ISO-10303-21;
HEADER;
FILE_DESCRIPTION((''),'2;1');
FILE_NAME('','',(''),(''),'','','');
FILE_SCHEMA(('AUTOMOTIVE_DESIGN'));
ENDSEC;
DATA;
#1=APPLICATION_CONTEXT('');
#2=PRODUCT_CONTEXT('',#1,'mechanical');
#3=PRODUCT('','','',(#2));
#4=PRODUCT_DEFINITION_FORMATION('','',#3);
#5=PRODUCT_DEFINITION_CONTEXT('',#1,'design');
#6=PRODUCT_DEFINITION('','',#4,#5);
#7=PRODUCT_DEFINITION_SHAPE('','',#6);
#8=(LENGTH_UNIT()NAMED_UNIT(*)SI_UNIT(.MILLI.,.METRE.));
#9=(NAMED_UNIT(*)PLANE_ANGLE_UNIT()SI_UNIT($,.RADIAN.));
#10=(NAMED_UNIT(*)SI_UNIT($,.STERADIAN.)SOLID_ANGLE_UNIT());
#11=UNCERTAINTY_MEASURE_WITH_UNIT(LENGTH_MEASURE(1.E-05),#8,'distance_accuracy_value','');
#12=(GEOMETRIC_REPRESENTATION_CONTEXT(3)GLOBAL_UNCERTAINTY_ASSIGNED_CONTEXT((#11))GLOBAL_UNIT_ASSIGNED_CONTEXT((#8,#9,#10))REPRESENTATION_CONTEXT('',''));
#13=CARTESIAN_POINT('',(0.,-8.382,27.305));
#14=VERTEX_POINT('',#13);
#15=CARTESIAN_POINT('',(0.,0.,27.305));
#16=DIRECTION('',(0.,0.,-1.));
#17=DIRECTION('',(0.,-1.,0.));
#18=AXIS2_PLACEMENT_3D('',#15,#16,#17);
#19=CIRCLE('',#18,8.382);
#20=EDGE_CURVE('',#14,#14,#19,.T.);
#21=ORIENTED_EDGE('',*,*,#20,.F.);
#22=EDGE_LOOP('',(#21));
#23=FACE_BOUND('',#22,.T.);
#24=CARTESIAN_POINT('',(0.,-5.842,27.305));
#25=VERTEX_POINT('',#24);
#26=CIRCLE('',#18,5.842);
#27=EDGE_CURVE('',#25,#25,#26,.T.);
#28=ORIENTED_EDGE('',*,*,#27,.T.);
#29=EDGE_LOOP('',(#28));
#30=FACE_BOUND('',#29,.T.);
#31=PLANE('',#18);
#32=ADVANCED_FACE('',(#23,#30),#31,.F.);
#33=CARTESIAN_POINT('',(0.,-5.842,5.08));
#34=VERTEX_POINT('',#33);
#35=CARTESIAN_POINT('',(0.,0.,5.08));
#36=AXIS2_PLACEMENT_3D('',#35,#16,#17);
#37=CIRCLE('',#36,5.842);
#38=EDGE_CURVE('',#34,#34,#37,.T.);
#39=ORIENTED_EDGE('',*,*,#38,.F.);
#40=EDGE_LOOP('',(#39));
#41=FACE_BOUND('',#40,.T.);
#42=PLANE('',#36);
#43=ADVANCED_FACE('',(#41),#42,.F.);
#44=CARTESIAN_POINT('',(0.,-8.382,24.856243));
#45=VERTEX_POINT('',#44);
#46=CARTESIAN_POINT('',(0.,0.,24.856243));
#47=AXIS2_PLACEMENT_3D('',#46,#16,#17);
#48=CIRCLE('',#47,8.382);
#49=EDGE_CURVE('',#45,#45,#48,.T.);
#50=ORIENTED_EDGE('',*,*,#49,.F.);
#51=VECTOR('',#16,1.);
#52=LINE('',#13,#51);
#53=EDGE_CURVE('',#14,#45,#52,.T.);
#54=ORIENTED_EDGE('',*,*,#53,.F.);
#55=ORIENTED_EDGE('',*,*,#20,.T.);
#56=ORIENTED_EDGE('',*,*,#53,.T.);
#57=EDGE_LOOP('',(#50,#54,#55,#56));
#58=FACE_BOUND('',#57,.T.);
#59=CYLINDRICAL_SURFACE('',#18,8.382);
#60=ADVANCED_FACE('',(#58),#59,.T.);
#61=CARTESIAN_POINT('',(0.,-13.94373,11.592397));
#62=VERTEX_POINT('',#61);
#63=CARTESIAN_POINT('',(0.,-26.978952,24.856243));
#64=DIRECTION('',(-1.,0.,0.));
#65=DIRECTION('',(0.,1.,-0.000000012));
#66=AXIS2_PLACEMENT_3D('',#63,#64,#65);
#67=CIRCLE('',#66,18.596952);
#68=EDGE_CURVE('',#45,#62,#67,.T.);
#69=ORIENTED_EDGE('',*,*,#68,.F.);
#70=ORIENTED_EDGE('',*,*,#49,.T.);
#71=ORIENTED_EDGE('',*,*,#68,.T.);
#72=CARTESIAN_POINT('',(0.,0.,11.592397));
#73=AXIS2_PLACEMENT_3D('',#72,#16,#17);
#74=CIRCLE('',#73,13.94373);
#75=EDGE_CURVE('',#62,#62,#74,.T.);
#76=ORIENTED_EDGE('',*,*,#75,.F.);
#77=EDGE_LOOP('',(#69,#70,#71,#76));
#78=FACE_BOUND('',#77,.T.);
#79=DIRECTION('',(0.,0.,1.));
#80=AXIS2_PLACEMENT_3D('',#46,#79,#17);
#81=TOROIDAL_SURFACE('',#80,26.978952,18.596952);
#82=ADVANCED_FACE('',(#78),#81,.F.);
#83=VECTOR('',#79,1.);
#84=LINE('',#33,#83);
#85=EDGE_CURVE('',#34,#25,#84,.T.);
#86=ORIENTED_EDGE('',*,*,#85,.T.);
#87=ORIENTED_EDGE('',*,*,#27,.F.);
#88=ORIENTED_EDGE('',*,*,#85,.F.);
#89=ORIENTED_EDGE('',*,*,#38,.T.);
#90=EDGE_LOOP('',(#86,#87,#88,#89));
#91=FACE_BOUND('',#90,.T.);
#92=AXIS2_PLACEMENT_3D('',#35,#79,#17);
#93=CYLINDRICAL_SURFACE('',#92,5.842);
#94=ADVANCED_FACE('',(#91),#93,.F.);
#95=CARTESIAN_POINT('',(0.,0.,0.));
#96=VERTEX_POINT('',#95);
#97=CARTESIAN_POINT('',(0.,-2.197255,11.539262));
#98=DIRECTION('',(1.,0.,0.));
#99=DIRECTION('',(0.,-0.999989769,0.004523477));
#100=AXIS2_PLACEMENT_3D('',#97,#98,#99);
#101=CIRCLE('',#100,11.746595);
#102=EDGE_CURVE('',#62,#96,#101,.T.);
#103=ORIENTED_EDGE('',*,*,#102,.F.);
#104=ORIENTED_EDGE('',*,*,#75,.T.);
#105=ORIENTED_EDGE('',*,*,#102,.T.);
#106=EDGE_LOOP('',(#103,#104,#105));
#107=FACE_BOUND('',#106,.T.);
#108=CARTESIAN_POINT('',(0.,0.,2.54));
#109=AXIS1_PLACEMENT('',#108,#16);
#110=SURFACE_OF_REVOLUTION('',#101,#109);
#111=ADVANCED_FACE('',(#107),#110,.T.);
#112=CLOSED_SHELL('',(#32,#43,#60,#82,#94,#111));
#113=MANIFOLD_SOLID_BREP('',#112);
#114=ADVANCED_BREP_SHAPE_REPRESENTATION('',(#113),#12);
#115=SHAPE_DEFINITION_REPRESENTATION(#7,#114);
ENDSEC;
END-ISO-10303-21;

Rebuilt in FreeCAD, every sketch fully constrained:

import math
import FreeCAD as App
import Part
import Sketcher
from FreeCAD import Vector
Q = App.Units.Quantity

doc = App.newDocument("Part")
body = doc.addObject("PartDesign::Body", "Body")

sketch1 = body.newObject("Sketcher::SketchObject", "Sketch")
sketch1.AttachmentSupport = (doc.getObject("YZ_Plane"), [""])
sketch1.MapMode = "FlatFace"
sketch1.addGeometry(Part.LineSegment(Vector(-5.842, 5.08, 0), Vector(-5.842, 27.305, 0)), False)
sketch1.addGeometry(Part.LineSegment(Vector(-5.842, 27.305, 0), Vector(-8.382, 27.305, 0)), False)
sketch1.addGeometry(Part.LineSegment(Vector(-8.382, 27.305, 0), Vector(-8.382, 24.856243, 0)), False)
sketch1.addGeometry(Part.ArcOfCircle(Part.Circle(Vector(-26.978952, 24.856243, 0), Vector(0, 0, 1), 18.596952), math.radians(-45.498073), math.radians(-0.000001)), False)
sketch1.addGeometry(Part.ArcOfCircle(Part.Circle(Vector(-2.197255, 11.539262, 0), Vector(0, 0, 1), 11.746595), math.radians(179.740823), math.radians(280.780948)), False)
sketch1.addGeometry(Part.LineSegment(Vector(0, 0, 0), Vector(0, 5.08, 0)), False)
sketch1.addGeometry(Part.LineSegment(Vector(0, 5.08, 0), Vector(-5.842, 5.08, 0)), False)
sketch1.addConstraint(Sketcher.Constraint("Coincident", 0, 2, 1, 1))
sketch1.addConstraint(Sketcher.Constraint("Coincident", 1, 2, 2, 1))
sketch1.addConstraint(Sketcher.Constraint("Tangent", 2, 2, 3, 2))
sketch1.addConstraint(Sketcher.Constraint("Coincident", 3, 1, 4, 1))
sketch1.addConstraint(Sketcher.Constraint("Coincident", 4, 2, 5, 1))
sketch1.addConstraint(Sketcher.Constraint("Coincident", 5, 2, 6, 1))
sketch1.addConstraint(Sketcher.Constraint("Coincident", 6, 2, 0, 1))
sketch1.addConstraint(Sketcher.Constraint("Vertical", 0))
sketch1.addConstraint(Sketcher.Constraint("Horizontal", 1))
sketch1.addConstraint(Sketcher.Constraint("Vertical", 2))
sketch1.addConstraint(Sketcher.Constraint("Vertical", 5))
sketch1.addConstraint(Sketcher.Constraint("Horizontal", 6))
sketch1.addConstraint(Sketcher.Constraint("Coincident", 4, 2, -1, 1))
sketch1.addConstraint(Sketcher.Constraint("DistanceX", 1, 2, 1, 1, Q("0.1 in")))
sketch1.addConstraint(Sketcher.Constraint("DistanceY", 5, 1, 5, 2, Q("0.2 in")))
sketch1.addConstraint(Sketcher.Constraint("DistanceX", 6, 2, 6, 1, Q("0.23 in")))
sketch1.addConstraint(Sketcher.Constraint("DistanceY", 0, 1, 0, 2, Q("0.875 in")))
sketch1.addConstraint(Sketcher.Constraint("Radius", 3, 18.596952))
sketch1.addConstraint(Sketcher.Constraint("Radius", 4, 11.746595))
sketch1.addConstraint(Sketcher.Constraint("DistanceY", 2, 2, 2, 1, 2.448757))
sketch1.addConstraint(Sketcher.Constraint("DistanceY", -1, 1, 4, 3, 11.539262))
revolution = body.newObject("PartDesign::Revolution", "Revolution")
revolution.Profile = sketch1
revolution.ReferenceAxis = (sketch1, ["V_Axis"])
revolution.Angle = 360

doc.recompute()
